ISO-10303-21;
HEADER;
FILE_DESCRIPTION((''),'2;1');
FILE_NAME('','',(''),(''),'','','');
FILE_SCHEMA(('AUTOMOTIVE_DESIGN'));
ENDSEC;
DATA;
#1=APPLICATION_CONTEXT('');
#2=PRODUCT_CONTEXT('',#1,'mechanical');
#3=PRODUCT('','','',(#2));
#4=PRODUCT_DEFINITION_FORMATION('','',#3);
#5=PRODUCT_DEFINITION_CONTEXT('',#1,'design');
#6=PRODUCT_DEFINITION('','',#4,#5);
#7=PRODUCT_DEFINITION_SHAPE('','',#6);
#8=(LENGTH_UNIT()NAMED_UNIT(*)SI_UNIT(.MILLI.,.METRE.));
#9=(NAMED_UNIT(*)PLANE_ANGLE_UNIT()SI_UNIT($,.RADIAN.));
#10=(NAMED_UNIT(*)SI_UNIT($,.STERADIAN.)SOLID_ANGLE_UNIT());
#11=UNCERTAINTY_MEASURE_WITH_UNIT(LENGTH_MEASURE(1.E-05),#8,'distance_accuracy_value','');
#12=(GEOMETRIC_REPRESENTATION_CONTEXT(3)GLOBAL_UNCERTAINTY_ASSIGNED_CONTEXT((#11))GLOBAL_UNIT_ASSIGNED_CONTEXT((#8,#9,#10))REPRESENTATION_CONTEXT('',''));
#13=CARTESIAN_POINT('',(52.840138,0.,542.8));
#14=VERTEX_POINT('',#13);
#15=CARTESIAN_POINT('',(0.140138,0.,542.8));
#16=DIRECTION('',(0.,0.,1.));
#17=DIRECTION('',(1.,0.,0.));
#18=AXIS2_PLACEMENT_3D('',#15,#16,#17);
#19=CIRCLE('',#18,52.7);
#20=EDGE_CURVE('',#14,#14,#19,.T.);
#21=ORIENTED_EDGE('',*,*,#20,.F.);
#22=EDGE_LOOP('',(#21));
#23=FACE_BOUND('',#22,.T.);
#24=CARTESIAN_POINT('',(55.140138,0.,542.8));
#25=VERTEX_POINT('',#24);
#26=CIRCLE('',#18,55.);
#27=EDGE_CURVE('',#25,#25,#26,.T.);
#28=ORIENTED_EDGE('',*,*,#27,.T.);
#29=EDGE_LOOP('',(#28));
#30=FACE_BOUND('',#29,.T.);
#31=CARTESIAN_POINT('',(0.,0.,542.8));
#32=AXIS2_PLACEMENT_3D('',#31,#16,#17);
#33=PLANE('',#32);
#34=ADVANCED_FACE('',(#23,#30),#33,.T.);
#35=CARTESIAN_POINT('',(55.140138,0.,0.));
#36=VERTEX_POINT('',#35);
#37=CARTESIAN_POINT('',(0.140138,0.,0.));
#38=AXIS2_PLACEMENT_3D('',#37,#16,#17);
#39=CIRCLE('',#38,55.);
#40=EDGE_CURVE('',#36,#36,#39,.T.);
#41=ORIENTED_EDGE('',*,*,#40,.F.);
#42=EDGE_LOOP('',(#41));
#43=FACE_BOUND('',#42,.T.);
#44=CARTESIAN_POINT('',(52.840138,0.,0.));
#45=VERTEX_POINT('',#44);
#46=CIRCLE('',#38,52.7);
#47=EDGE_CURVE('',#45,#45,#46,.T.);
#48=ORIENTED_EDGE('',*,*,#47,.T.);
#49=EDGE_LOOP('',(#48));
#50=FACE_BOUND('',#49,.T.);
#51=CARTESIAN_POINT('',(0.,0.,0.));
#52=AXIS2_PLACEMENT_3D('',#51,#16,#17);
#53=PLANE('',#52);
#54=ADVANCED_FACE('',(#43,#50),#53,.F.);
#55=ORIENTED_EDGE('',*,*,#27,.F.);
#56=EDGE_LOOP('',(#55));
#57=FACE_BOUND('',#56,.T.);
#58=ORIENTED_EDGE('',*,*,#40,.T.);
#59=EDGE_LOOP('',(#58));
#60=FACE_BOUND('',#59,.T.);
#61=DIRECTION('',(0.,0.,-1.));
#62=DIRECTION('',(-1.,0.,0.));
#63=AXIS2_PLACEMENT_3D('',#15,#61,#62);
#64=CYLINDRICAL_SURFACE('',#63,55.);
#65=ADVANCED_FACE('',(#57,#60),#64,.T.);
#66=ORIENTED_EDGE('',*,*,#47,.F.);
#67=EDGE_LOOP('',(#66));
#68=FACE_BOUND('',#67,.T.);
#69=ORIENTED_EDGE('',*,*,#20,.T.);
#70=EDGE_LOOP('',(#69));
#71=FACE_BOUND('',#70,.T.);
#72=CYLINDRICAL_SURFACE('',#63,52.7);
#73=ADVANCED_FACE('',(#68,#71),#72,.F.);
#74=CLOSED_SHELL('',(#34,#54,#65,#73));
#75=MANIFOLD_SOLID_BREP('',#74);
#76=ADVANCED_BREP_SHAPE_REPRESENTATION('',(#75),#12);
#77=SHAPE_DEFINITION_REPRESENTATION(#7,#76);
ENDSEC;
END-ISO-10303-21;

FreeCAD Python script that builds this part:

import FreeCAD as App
import Part
import Sketcher
from FreeCAD import Vector

doc = App.newDocument("Part")
body = doc.addObject("PartDesign::Body", "Body")

# Sketch on XY plane
sketch1 = doc.addObject("Sketcher::SketchObject", "Sketch")
body.addObject(sketch1)
sketch1.AttachmentSupport = (doc.XY_Plane, [""])
sketch1.MapMode = "FlatFace"
sketch1.addGeometry(Part.Circle(Vector(0, 0, 0), Vector(0, 0, 1), 55), False)
sketch1.addGeometry(Part.Circle(Vector(0, 0, 0), Vector(0, 0, 1), 53), False)
sketch1.addConstraint(Sketcher.Constraint("Coincident", 1, 3, 0, 3))
sketch1.addConstraint(Sketcher.Constraint("PointOnObject", 0, 3, -1))
sketch1.addConstraint(Sketcher.Constraint("Diameter", 0, 110.0))
sketch1.addConstraint(Sketcher.Constraint("Diameter", 1, 105.4))
sketch1.addConstraint(Sketcher.Constraint("DistanceX", -1, 1, 0, 3, 0.140138))
pad1 = doc.addObject("PartDesign::Pad", "Pad")
body.addObject(pad1)
pad1.Profile = sketch1
pad1.Length = 542.8

doc.recompute()
